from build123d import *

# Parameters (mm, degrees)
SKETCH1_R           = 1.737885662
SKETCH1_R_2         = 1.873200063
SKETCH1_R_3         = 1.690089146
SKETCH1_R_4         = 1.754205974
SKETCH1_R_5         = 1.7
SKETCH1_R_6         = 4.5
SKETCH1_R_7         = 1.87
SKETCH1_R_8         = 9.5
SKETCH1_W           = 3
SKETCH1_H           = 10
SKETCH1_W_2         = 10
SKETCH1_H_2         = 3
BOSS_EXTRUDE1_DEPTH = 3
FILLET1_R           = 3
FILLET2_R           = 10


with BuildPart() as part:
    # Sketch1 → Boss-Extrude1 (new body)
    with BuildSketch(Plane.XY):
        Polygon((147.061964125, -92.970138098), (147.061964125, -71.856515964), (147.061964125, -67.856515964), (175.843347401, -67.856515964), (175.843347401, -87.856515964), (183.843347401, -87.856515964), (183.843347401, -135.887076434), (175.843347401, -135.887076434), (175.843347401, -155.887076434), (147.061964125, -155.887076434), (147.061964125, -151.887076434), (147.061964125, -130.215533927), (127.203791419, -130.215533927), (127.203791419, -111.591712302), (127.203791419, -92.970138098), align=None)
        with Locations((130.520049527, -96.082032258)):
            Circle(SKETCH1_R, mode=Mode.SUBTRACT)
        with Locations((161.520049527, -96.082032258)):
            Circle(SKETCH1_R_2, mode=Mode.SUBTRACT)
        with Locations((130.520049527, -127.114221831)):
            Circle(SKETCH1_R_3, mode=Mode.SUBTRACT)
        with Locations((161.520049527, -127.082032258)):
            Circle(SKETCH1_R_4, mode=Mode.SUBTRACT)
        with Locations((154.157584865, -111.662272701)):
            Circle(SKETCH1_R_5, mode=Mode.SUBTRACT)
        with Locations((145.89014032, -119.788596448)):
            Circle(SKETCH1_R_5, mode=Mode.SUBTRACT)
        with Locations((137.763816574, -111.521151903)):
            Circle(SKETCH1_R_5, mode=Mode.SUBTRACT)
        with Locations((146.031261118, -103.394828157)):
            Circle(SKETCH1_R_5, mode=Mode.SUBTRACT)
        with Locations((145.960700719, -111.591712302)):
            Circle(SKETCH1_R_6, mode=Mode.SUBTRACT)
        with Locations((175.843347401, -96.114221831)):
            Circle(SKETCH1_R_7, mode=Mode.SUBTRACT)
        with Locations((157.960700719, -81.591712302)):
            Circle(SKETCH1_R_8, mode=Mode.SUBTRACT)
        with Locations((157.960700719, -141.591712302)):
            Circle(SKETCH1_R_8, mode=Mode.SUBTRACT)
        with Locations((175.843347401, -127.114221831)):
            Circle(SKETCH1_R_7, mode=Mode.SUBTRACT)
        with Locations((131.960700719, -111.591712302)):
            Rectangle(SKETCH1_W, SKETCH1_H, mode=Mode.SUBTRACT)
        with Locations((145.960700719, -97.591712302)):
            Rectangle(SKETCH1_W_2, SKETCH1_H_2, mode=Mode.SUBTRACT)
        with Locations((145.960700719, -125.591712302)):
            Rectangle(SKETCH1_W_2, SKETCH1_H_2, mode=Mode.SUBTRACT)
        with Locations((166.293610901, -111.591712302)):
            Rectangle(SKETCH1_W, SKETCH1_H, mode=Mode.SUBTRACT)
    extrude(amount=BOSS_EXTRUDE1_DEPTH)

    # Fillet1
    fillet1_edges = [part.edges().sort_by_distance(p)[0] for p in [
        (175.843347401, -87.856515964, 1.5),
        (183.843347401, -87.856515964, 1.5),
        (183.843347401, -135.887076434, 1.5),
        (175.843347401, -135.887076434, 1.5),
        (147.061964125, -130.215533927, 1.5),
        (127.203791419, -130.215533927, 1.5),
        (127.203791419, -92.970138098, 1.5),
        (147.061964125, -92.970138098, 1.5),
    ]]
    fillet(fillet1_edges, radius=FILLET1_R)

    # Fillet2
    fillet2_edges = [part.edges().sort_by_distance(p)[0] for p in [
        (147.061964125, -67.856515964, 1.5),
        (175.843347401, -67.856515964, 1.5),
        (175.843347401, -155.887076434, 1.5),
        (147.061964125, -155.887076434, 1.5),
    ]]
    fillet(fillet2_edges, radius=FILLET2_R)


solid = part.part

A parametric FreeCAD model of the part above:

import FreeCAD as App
import Part
import Sketcher
from FreeCAD import Vector


def edges_at(feature, points):
    """Names of the edges that pass closest to the given points."""
    edges = feature.Shape.Edges
    near = lambda p: min(range(len(edges)), key=lambda i: edges[i].distToShape(Part.Vertex(*p))[0])
    return sorted({f"Edge{near(p) + 1}" for p in points})

doc = App.newDocument("Part")
body = doc.addObject("PartDesign::Body", "Body")

# Sketch on XY plane
sketch1 = body.newObject("Sketcher::SketchObject", "Sketch")
sketch1.AttachmentSupport = (doc.getObject("XY_Plane"), [""])
sketch1.MapMode = "FlatFace"
sketch1.addGeometry(Part.LineSegment(Vector(147.1, -67.9, 0), Vector(147.1, -93, 0)), False)
sketch1.addGeometry(Part.LineSegment(Vector(147.1, -93, 0), Vector(127.2, -93, 0)), False)
sketch1.addGeometry(Part.LineSegment(Vector(127.2, -93, 0), Vector(127.2, -130.2, 0)), False)
sketch1.addGeometry(Part.LineSegment(Vector(127.2, -130.2, 0), Vector(147.1, -130.2, 0)), False)
sketch1.addGeometry(Part.LineSegment(Vector(147.1, -130.2, 0), Vector(147.1, -155.9, 0)), False)
sketch1.addGeometry(Part.LineSegment(Vector(147.1, -155.9, 0), Vector(175.8, -155.9, 0)), False)
sketch1.addGeometry(Part.LineSegment(Vector(175.8, -155.9, 0), Vector(175.8, -135.9, 0)), False)
sketch1.addGeometry(Part.LineSegment(Vector(175.8, -135.9, 0), Vector(183.8, -135.9, 0)), False)
sketch1.addGeometry(Part.LineSegment(Vector(183.8, -135.9, 0), Vector(183.8, -87.9, 0)), False)
sketch1.addGeometry(Part.LineSegment(Vector(183.8, -87.9, 0), Vector(175.8, -87.9, 0)), False)
sketch1.addGeometry(Part.LineSegment(Vector(175.8, -87.9, 0), Vector(175.8, -67.9, 0)), False)
sketch1.addGeometry(Part.LineSegment(Vector(175.8, -67.9, 0), Vector(147.1, -67.9, 0)), False)
sketch1.addGeometry(Part.Circle(Vector(158, -141.6, 0), Vector(0, 0, 1), 9.5), False)
sketch1.addGeometry(Part.Circle(Vector(175.8, -127.1, 0), Vector(0, 0, 1), 1.9), False)
sketch1.addGeometry(Part.LineSegment(Vector(164.8, -116.6, 0), Vector(164.8, -106.6, 0)), False)
sketch1.addGeometry(Part.LineSegment(Vector(164.8, -106.6, 0), Vector(167.8, -106.6, 0)), False)
sketch1.addGeometry(Part.LineSegment(Vector(167.8, -106.6, 0), Vector(167.8, -116.6, 0)), False)
sketch1.addGeometry(Part.LineSegment(Vector(167.8, -116.6, 0), Vector(164.8, -116.6, 0)), False)
sketch1.addGeometry(Part.Circle(Vector(161.5, -127.1, 0), Vector(0, 0, 1), 1.8), False)
sketch1.addGeometry(Part.Circle(Vector(154.2, -111.7, 0), Vector(0, 0, 1), 1.7), False)
sketch1.addGeometry(Part.LineSegment(Vector(141, -127.1, 0), Vector(141, -124.1, 0)), False)
sketch1.addGeometry(Part.LineSegment(Vector(141, -124.1, 0), Vector(151, -124.1, 0)), False)
sketch1.addGeometry(Part.LineSegment(Vector(151, -124.1, 0), Vector(151, -127.1, 0)), False)
sketch1.addGeometry(Part.LineSegment(Vector(151, -127.1, 0), Vector(141, -127.1, 0)), False)
sketch1.addGeometry(Part.Circle(Vector(145.9, -119.8, 0), Vector(0, 0, 1), 1.7), False)
sketch1.addGeometry(Part.Circle(Vector(146, -111.6, 0), Vector(0, 0, 1), 4.5), False)
sketch1.addGeometry(Part.Circle(Vector(130.5, -127.1, 0), Vector(0, 0, 1), 1.7), False)
sketch1.addGeometry(Part.LineSegment(Vector(130.5, -116.6, 0), Vector(130.5, -106.6, 0)), False)
sketch1.addGeometry(Part.LineSegment(Vector(130.5, -106.6, 0), Vector(133.5, -106.6, 0)), False)
sketch1.addGeometry(Part.LineSegment(Vector(133.5, -106.6, 0), Vector(133.5, -116.6, 0)), False)
sketch1.addGeometry(Part.LineSegment(Vector(133.5, -116.6, 0), Vector(130.5, -116.6, 0)), False)
sketch1.addGeometry(Part.Circle(Vector(175.8, -96.1, 0), Vector(0, 0, 1), 1.9), False)
sketch1.addGeometry(Part.Circle(Vector(161.5, -96.1, 0), Vector(0, 0, 1), 1.9), False)
sketch1.addGeometry(Part.Circle(Vector(158, -81.6, 0), Vector(0, 0, 1), 9.5), False)
sketch1.addGeometry(Part.Circle(Vector(146, -103.4, 0), Vector(0, 0, 1), 1.7), False)
sketch1.addGeometry(Part.LineSegment(Vector(141, -99.1, 0), Vector(141, -96.1, 0)), False)
sketch1.addGeometry(Part.LineSegment(Vector(141, -96.1, 0), Vector(151, -96.1, 0)), False)
sketch1.addGeometry(Part.LineSegment(Vector(151, -96.1, 0), Vector(151, -99.1, 0)), False)
sketch1.addGeometry(Part.LineSegment(Vector(151, -99.1, 0), Vector(141, -99.1, 0)), False)
sketch1.addGeometry(Part.Circle(Vector(137.8, -111.5, 0), Vector(0, 0, 1), 1.7), False)
sketch1.addGeometry(Part.Circle(Vector(130.5, -96.1, 0), Vector(0, 0, 1), 1.7), False)
sketch1.addConstraint(Sketcher.Constraint("Coincident", 0, 2, 1, 1))
sketch1.addConstraint(Sketcher.Constraint("Coincident", 1, 2, 2, 1))
sketch1.addConstraint(Sketcher.Constraint("Coincident", 2, 2, 3, 1))
sketch1.addConstraint(Sketcher.Constraint("Coincident", 3, 2, 4, 1))
sketch1.addConstraint(Sketcher.Constraint("Coincident", 4, 2, 5, 1))
sketch1.addConstraint(Sketcher.Constraint("Coincident", 5, 2, 6, 1))
sketch1.addConstraint(Sketcher.Constraint("Coincident", 6, 2, 7, 1))
sketch1.addConstraint(Sketcher.Constraint("Coincident", 7, 2, 8, 1))
sketch1.addConstraint(Sketcher.Constraint("Coincident", 8, 2, 9, 1))
sketch1.addConstraint(Sketcher.Constraint("Coincident", 9, 2, 10, 1))
sketch1.addConstraint(Sketcher.Constraint("Coincident", 10, 2, 11, 1))
sketch1.addConstraint(Sketcher.Constraint("Coincident", 11, 2, 0, 1))
sketch1.addConstraint(Sketcher.Constraint("Coincident", 14, 2, 15, 1))
sketch1.addConstraint(Sketcher.Constraint("Coincident", 15, 2, 16, 1))
sketch1.addConstraint(Sketcher.Constraint("Coincident", 16, 2, 17, 1))
sketch1.addConstraint(Sketcher.Constraint("Coincident", 17, 2, 14, 1))
sketch1.addConstraint(Sketcher.Constraint("Coincident", 20, 2, 21, 1))
sketch1.addConstraint(Sketcher.Constraint("Coincident", 21, 2, 22, 1))
sketch1.addConstraint(Sketcher.Constraint("Coincident", 22, 2, 23, 1))
sketch1.addConstraint(Sketcher.Constraint("Coincident", 23, 2, 20, 1))
sketch1.addConstraint(Sketcher.Constraint("Coincident", 27, 2, 28, 1))
sketch1.addConstraint(Sketcher.Constraint("Coincident", 28, 2, 29, 1))
sketch1.addConstraint(Sketcher.Constraint("Coincident", 29, 2, 30, 1))
sketch1.addConstraint(Sketcher.Constraint("Coincident", 30, 2, 27, 1))
sketch1.addConstraint(Sketcher.Constraint("Coincident", 35, 2, 36, 1))
sketch1.addConstraint(Sketcher.Constraint("Coincident", 36, 2, 37, 1))
sketch1.addConstraint(Sketcher.Constraint("Coincident", 37, 2, 38, 1))
sketch1.addConstraint(Sketcher.Constraint("Coincident", 38, 2, 35, 1))
sketch1.addConstraint(Sketcher.Constraint("Vertical", 0))
sketch1.addConstraint(Sketcher.Constraint("Horizontal", 1))
sketch1.addConstraint(Sketcher.Constraint("Vertical", 2))
sketch1.addConstraint(Sketcher.Constraint("Horizontal", 3))
sketch1.addConstraint(Sketcher.Constraint("Vertical", 4))
sketch1.addConstraint(Sketcher.Constraint("Horizontal", 5))
sketch1.addConstraint(Sketcher.Constraint("Vertical", 6))
sketch1.addConstraint(Sketcher.Constraint("Horizontal", 7))
sketch1.addConstraint(Sketcher.Constraint("Vertical", 8))
sketch1.addConstraint(Sketcher.Constraint("Horizontal", 9))
sketch1.addConstraint(Sketcher.Constraint("Vertical", 10))
sketch1.addConstraint(Sketcher.Constraint("Horizontal", 11))
sketch1.addConstraint(Sketcher.Constraint("Vertical", 14))
sketch1.addConstraint(Sketcher.Constraint("Horizontal", 15))
sketch1.addConstraint(Sketcher.Constraint("Vertical", 16))
sketch1.addConstraint(Sketcher.Constraint("Horizontal", 17))
sketch1.addConstraint(Sketcher.Constraint("Vertical", 20))
sketch1.addConstraint(Sketcher.Constraint("Horizontal", 21))
sketch1.addConstraint(Sketcher.Constraint("Vertical", 22))
sketch1.addConstraint(Sketcher.Constraint("Horizontal", 23))
sketch1.addConstraint(Sketcher.Constraint("Vertical", 27))
sketch1.addConstraint(Sketcher.Constraint("Horizontal", 28))
sketch1.addConstraint(Sketcher.Constraint("Vertical", 29))
sketch1.addConstraint(Sketcher.Constraint("Horizontal", 30))
sketch1.addConstraint(Sketcher.Constraint("Vertical", 35))
sketch1.addConstraint(Sketcher.Constraint("Horizontal", 36))
sketch1.addConstraint(Sketcher.Constraint("Vertical", 37))
sketch1.addConstraint(Sketcher.Constraint("Horizontal", 38))
sketch1.addConstraint(Sketcher.Constraint("Equal", 19, 24))
sketch1.addConstraint(Sketcher.Constraint("Equal", 13, 31))
sketch1.addConstraint(Sketcher.Constraint("Equal", 12, 33))
sketch1.addConstraint(Sketcher.Constraint("Equal", 24, 34))
sketch1.addConstraint(Sketcher.Constraint("Equal", 34, 39))
sketch1.addConstraint(Sketcher.Constraint("Horizontal", 13, 3, 26, 3))
sketch1.addConstraint(Sketcher.Constraint("Horizontal", 32, 3, 40, 3))
sketch1.addConstraint(Sketcher.Constraint("Horizontal", 15, 2, 27, 2))
sketch1.addConstraint(Sketcher.Constraint("Horizontal", 17, 2, 29, 2))
sketch1.addConstraint(Sketcher.Constraint("Vertical", 13, 3, 31, 3))
sketch1.addConstraint(Sketcher.Constraint("Vertical", 18, 3, 32, 3))
sketch1.addConstraint(Sketcher.Constraint("Vertical", 12, 3, 33, 3))
sketch1.addConstraint(Sketcher.Constraint("Vertical", 26, 3, 40, 3))
sketch1.addConstraint(Sketcher.Constraint("Vertical", 0, 2, 3, 2))
sketch1.addConstraint(Sketcher.Constraint("Vertical", 31, 3, 5, 2))
sketch1.addConstraint(Sketcher.Constraint("Vertical", 6, 2, 9, 2))
sketch1.addConstraint(Sketcher.Constraint("Vertical", 23, 2, 35, 2))
sketch1.addConstraint(Sketcher.Constraint("Vertical", 22, 2, 36, 2))
sketch1.addConstraint(Sketcher.Constraint("Equal", 17, 28))
sketch1.addConstraint(Sketcher.Constraint("Equal", 6, 10))
sketch1.addConstraint(Sketcher.Constraint("Equal", 38, 14))
sketch1.addConstraint(Sketcher.Constraint("Equal", 30, 20))
sketch1.addConstraint(Sketcher.Constraint("Equal", 22, 35))
sketch1.addConstraint(Sketcher.Constraint("Diameter", 12, 19.0))
sketch1.addConstraint(Sketcher.Constraint("Diameter", 25, 9.0))
sketch1.addConstraint(Sketcher.Constraint("Diameter", 19, 3.4))
sketch1.addConstraint(Sketcher.Constraint("Diameter", 13, 3.74))
sketch1.addConstraint(Sketcher.Constraint("DistanceX", 7, 1, 7, 2, 8.0))
sketch1.addConstraint(Sketcher.Constraint("DistanceX", 15, 1, 15, 2, 3.0))
sketch1.addConstraint(Sketcher.Constraint("DistanceX", 21, 1, 21, 2, 10.0))
sketch1.addConstraint(Sketcher.Constraint("DistanceY", 6, 1, 6, 2, 20.0))
sketch1.addConstraint(Sketcher.Constraint("DistanceX", 25, 3, 12, 3, 12.0))
sketch1.addConstraint(Sketcher.Constraint("DistanceY", 12, 3, 25, 3, 30.0))
sketch1.addConstraint(Sketcher.Constraint("DistanceX", 26, 3, 18, 3, 31.0))
sketch1.addConstraint(Sketcher.Constraint("DistanceY", 13, 3, 31, 3, 31.0))
sketch1.addConstraint(Sketcher.Constraint("DistanceY", 18, 3, 32, 3, 31.0))
sketch1.addConstraint(Sketcher.Constraint("DistanceY", 25, 3, 33, 3, 30.0))
sketch1.addConstraint(Sketcher.Constraint("DistanceY", 25, 3, 14, 2, 5.0))
sketch1.addConstraint(Sketcher.Constraint("DistanceX", 20, 2, 25, 3, 5.0))
sketch1.addConstraint(Sketcher.Constraint("Diameter", 32, 3.7464))
sketch1.addConstraint(Sketcher.Constraint("DistanceY", 20, 2, 25, 3, 12.5))
sketch1.addConstraint(Sketcher.Constraint("DistanceX", 27, 2, 25, 3, 15.5))
sketch1.addConstraint(Sketcher.Constraint("DistanceY", 28, 2, 35, 2, 10.5))
sketch1.addConstraint(Sketcher.Constraint("Diameter", 18, 3.508412))
sketch1.addConstraint(Sketcher.Constraint("Diameter", 26, 3.380178))
sketch1.addConstraint(Sketcher.Constraint("Diameter", 40, 3.475771))
sketch1.addConstraint(Sketcher.Constraint("DistanceY", 8, 1, 8, 2, 48.03056))
sketch1.addConstraint(Sketcher.Constraint("DistanceX", -1, 1, 12, 3, 157.960701))
sketch1.addConstraint(Sketcher.Constraint("DistanceY", 3, 2, 18, 3, 3.133502))
sketch1.addConstraint(Sketcher.Constraint("DistanceX", 1, 2, 1, 1, 19.858173))
sketch1.addConstraint(Sketcher.Constraint("DistanceX", 5, 1, 5, 2, 28.781383))
sketch1.addConstraint(Sketcher.Constraint("DistanceY", 0, 2, 0, 1, 25.113622))
sketch1.addConstraint(Sketcher.Constraint("DistanceY", 2, 2, 2, 1, 37.245396))
sketch1.addConstraint(Sketcher.Constraint("DistanceY", 13, 3, -1, 1, 127.114222))
sketch1.addConstraint(Sketcher.Constraint("DistanceX", -1, 1, 18, 3, 161.52005))
sketch1.addConstraint(Sketcher.Constraint("DistanceX", -1, 1, 24, 3, 145.89014))
sketch1.addConstraint(Sketcher.Constraint("DistanceX", -1, 1, 34, 3, 146.031261))
sketch1.addConstraint(Sketcher.Constraint("DistanceY", 34, 3, -1, 1, 103.394828))
sketch1.addConstraint(Sketcher.Constraint("DistanceY", 39, 3, -1, 1, 111.521152))
sketch1.addConstraint(Sketcher.Constraint("DistanceY", 0, 2, -1, 1, 92.970138))
sketch1.addConstraint(Sketcher.Constraint("DistanceX", -1, 1, 1, 2, 127.203791))
sketch1.addConstraint(Sketcher.Constraint("DistanceX", -1, 1, 14, 2, 164.793611))
sketch1.addConstraint(Sketcher.Constraint("DistanceY", 12, 3, 13, 3, 14.47749))
sketch1.addConstraint(Sketcher.Constraint("DistanceY", 18, 3, 19, 3, 15.41976))
sketch1.addConstraint(Sketcher.Constraint("DistanceY", 24, 3, 34, 3, 16.393768))
sketch1.addConstraint(Sketcher.Constraint("DistanceX", 39, 3, 19, 3, 16.393768))
sketch1.addConstraint(Sketcher.Constraint("DistanceX", -1, 1, 19, 3, 154.157585))
pad1 = body.newObject("PartDesign::Pad", "Pad")
pad1.Profile = sketch1
pad1.Length = 3
doc.recompute()

fillet = body.newObject("PartDesign::Fillet", "Fillet")
fillet.Base = (pad1, edges_at(pad1, [
    (175.843, -87.857, 1.5),
    (183.843, -87.857, 1.5),
    (183.843, -135.887, 1.5),
    (175.843, -135.887, 1.5),
    (147.062, -130.216, 1.5),
    (127.204, -130.216, 1.5),
    (127.204, -92.97, 1.5),
    (147.062, -92.97, 1.5),
]))
fillet.Radius = 3
doc.recompute()

fillet2 = body.newObject("PartDesign::Fillet", "Fillet001")
fillet2.Base = (fillet, edges_at(fillet, [
    (147.062, -67.857, 1.5),
    (175.843, -67.857, 1.5),
    (175.843, -155.887, 1.5),
    (147.062, -155.887, 1.5),
]))
fillet2.Radius = 10

doc.recompute()
